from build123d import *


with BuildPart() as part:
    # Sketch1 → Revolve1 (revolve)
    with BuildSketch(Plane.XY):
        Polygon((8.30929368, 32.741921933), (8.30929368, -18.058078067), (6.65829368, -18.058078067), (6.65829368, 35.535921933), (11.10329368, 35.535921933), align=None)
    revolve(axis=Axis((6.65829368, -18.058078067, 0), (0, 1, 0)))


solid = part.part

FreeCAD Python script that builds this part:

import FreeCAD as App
import Part
import Sketcher

V = App.Vector
Q = App.Units.Quantity


def add_polygon(sketch, points):
    """Adds a closed chain of lines whose ends are joined by coincident constraints."""
    first, n = sketch.GeometryCount, len(points)
    for a, b in zip(points, points[1:] + points[:1]):
        sketch.addGeometry(Part.LineSegment(App.Vector(*a, 0), App.Vector(*b, 0)), False)
    for i in range(n):
        sketch.addConstraint(Sketcher.Constraint("Coincident", first + i, 2, first + (i + 1) % n, 1))

doc = App.newDocument("Part")
params = doc.addObject("Spreadsheet::Sheet", "Params")
for row, (alias, value) in enumerate([
    ("sketch1_height", "2 in"),
    ("sketch1_height2", "2.11 in"),
    ("sketch1_width", "0.175 in"),
    ("revolution_angle", "360 deg"),
], start=1):
    params.set(f"A{row}", alias)
    params.set(f"B{row}", "=" + value)
    params.setAlias(f"B{row}", alias)

body = doc.addObject("PartDesign::Body", "Body")

sketch1 = doc.addObject("Sketcher::SketchObject", "Sketch")
body.addObject(sketch1)
sketch1.AttachmentSupport = (doc.XY_Plane, [""])
sketch1.MapMode = "FlatFace"
add_polygon(sketch1, [(8.3, -18.1), (8.3, 32.7), (11.1, 35.5), (6.7, 35.5), (6.7, -18.1)])
sketch1.addGeometry(Part.LineSegment(V(6.7, -18.1, 0), V(6.7, 35.5, 0)), True)
sketch1.addConstraint(Sketcher.Constraint("Vertical", 0))
sketch1.addConstraint(Sketcher.Constraint("Horizontal", 2))
sketch1.addConstraint(Sketcher.Constraint("Vertical", 3))
sketch1.addConstraint(Sketcher.Constraint("Horizontal", 4))
sketch1.addConstraint(Sketcher.Constraint("Vertical", 5))
sketch1.addConstraint(Sketcher.Constraint("Coincident", 5, 1, 3, 2))
sketch1.addConstraint(Sketcher.Constraint("Horizontal", 1, 2, 5, 2))
sketch1.addConstraint(Sketcher.Constraint("DistanceY", 0, 1, 0, 2, Q("2 in")))
sketch1.addConstraint(Sketcher.Constraint("Angle", 1, Q("45 deg")))
sketch1.addConstraint(Sketcher.Constraint("DistanceY", 3, 2, 3, 1, Q("2.11 in")))
sketch1.addConstraint(Sketcher.Constraint("DistanceX", 2, 2, 2, 1, Q("0.175 in")))
sketch1.addConstraint(Sketcher.Constraint("DistanceY", -1, 1, 0, 2, 32.741922))
sketch1.addConstraint(Sketcher.Constraint("DistanceX", -1, 1, 0, 2, 8.309294))
sketch1.setExpression("Constraints[12]", "Params.sketch1_height")
sketch1.setExpression("Constraints[14]", "Params.sketch1_height2")
sketch1.setExpression("Constraints[15]", "Params.sketch1_width")
revolution = doc.addObject("PartDesign::Revolution", "Revolution")
body.addObject(revolution)
revolution.Profile = sketch1
revolution.ReferenceAxis = (sketch1, ["Axis0"])
revolution.setExpression("Angle", "Params.revolution_angle")

doc.recompute()
